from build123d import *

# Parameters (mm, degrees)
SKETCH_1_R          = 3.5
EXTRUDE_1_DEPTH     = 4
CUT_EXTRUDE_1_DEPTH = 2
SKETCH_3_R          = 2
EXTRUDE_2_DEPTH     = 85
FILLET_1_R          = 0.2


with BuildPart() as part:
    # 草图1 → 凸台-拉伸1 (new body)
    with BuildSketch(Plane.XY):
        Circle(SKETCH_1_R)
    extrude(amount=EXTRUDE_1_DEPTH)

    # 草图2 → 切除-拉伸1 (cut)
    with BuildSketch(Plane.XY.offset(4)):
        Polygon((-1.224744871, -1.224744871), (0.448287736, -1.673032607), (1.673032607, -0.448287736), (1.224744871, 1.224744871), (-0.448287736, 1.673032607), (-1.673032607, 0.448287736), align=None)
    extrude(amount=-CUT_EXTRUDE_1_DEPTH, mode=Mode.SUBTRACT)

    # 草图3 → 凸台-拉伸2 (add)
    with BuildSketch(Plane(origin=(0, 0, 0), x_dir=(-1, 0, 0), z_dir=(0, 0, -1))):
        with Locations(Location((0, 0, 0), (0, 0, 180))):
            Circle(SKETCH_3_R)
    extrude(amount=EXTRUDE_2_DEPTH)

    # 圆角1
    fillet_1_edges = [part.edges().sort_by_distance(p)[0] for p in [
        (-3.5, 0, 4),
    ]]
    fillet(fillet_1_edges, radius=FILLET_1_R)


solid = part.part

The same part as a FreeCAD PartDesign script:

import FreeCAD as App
import Part
import Sketcher
Q = App.Units.Quantity


def edges_at(feature, points):
    """Names of the edges that pass closest to the given points."""
    edges = feature.Shape.Edges
    near = lambda p: min(range(len(edges)), key=lambda i: edges[i].distToShape(Part.Vertex(*p))[0])
    return sorted({f"Edge{near(p) + 1}" for p in points})

doc = App.newDocument("Part")
body = doc.addObject("PartDesign::Body", "Body")

# Sketch on XY plane
sketch1 = body.newObject("Sketcher::SketchObject", "Sketch")
sketch1.AttachmentSupport = (doc.getObject("XY_Plane"), [""])
sketch1.MapMode = "FlatFace"
sketch1.addGeometry(Part.Circle(App.Vector(0, 0, 0), App.Vector(0, 0, 1), 3.5), False)
sketch1.addConstraint(Sketcher.Constraint("Coincident", 0, 3, -1, 1))
sketch1.addConstraint(Sketcher.Constraint("Diameter", 0, Q("7 mm")))
pad1 = body.newObject("PartDesign::Pad", "Pad")
pad1.Profile = sketch1
pad1.Length = 4

# Sketch on XY plane
sketch2 = body.newObject("Sketcher::SketchObject", "Sketch001")
sketch2.AttachmentSupport = (doc.getObject("XY_Plane"), [""])
sketch2.MapMode = "FlatFace"
sketch2.AttachmentOffset = App.Placement(App.Vector(0, 0, 4), App.Rotation())
sketch2.addGeometry(Part.LineSegment(App.Vector(-1.2, -1.2, 0), App.Vector(0.4, -1.7, 0)), False)
sketch2.addGeometry(Part.LineSegment(App.Vector(0.4, -1.7, 0), App.Vector(1.7, -0.4, 0)), False)
sketch2.addGeometry(Part.LineSegment(App.Vector(1.7, -0.4, 0), App.Vector(1.2, 1.2, 0)), False)
sketch2.addGeometry(Part.LineSegment(App.Vector(1.2, 1.2, 0), App.Vector(-0.4, 1.7, 0)), False)
sketch2.addGeometry(Part.LineSegment(App.Vector(-0.4, 1.7, 0), App.Vector(-1.7, 0.4, 0)), False)
sketch2.addGeometry(Part.LineSegment(App.Vector(-1.7, 0.4, 0), App.Vector(-1.2, -1.2, 0)), False)
sketch2.addConstraint(Sketcher.Constraint("Coincident", 0, 2, 1, 1))
sketch2.addConstraint(Sketcher.Constraint("Coincident", 1, 2, 2, 1))
sketch2.addConstraint(Sketcher.Constraint("Coincident", 2, 2, 3, 1))
sketch2.addConstraint(Sketcher.Constraint("Coincident", 3, 2, 4, 1))
sketch2.addConstraint(Sketcher.Constraint("Coincident", 4, 2, 5, 1))
sketch2.addConstraint(Sketcher.Constraint("Coincident", 5, 2, 0, 1))
sketch2.addConstraint(Sketcher.Constraint("Symmetric", 0, 2, 3, 2, -1, 1))
sketch2.addConstraint(Sketcher.Constraint("Symmetric", 1, 2, 4, 2, -1, 1))
sketch2.addConstraint(Sketcher.Constraint("Symmetric", 2, 2, 5, 2, -1, 1))
sketch2.addConstraint(Sketcher.Constraint("Equal", 0, 1))
sketch2.addConstraint(Sketcher.Constraint("Equal", 1, 2))
sketch2.addConstraint(Sketcher.Constraint("Angle", 0, Q("-15 deg")))
sketch2.addConstraint(Sketcher.Constraint("Angle", 1, Q("45 deg")))
sketch2.addConstraint(Sketcher.Constraint("Angle", 2, Q("105 deg")))
sketch2.addConstraint(Sketcher.Constraint("Distance", 0, Q("1.732051 mm")))
pocket1 = body.newObject("PartDesign::Pocket", "Pocket")
pocket1.Profile = sketch2
pocket1.Length = 2

# Sketch on XY plane
sketch3 = body.newObject("Sketcher::SketchObject", "Sketch002")
sketch3.AttachmentSupport = (doc.getObject("XY_Plane"), [""])
sketch3.MapMode = "FlatFace"
sketch3.addGeometry(Part.Circle(App.Vector(0, 0, 0), App.Vector(0, 0, 1), 2), False)
sketch3.addConstraint(Sketcher.Constraint("Coincident", 0, 3, -1, 1))
sketch3.addConstraint(Sketcher.Constraint("Diameter", 0, Q("4 mm")))
pad2 = body.newObject("PartDesign::Pad", "Pad001")
pad2.Profile = sketch3
pad2.Length = 85
pad2.Reversed = True
doc.recompute()

fillet = body.newObject("PartDesign::Fillet", "Fillet")
fillet.Base = (pad2, edges_at(pad2, [(-3.5, 0, 4)]))
fillet.Radius = 0.2

doc.recompute()
